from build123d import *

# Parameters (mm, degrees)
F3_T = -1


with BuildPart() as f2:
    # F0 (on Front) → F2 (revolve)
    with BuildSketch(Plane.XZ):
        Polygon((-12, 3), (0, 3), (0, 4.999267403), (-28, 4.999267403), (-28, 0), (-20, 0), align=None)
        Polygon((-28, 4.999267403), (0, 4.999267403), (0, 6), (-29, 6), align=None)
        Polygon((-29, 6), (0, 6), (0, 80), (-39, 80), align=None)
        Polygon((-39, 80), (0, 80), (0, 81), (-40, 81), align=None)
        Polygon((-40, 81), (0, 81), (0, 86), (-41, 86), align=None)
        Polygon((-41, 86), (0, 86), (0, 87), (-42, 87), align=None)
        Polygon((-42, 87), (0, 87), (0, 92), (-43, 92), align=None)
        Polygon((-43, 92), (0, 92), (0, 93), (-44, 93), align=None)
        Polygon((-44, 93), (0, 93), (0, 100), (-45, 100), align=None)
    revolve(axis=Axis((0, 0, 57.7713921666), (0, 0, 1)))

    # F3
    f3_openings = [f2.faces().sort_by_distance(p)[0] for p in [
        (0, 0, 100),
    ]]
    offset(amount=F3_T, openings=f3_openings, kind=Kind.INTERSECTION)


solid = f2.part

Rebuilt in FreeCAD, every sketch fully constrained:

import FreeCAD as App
import Part
import Sketcher
Q = App.Units.Quantity


def faces_at(feature, points):
    """Names of the faces that lie closest to the given points."""
    faces = feature.Shape.Faces
    near = lambda p: min(range(len(faces)), key=lambda i: faces[i].distToShape(Part.Vertex(*p))[0])
    return sorted({f"Face{near(p) + 1}" for p in points})


def add_polygon(sketch, points):
    """Adds a closed chain of lines whose ends are joined by coincident constraints."""
    first, n = sketch.GeometryCount, len(points)
    for a, b in zip(points, points[1:] + points[:1]):
        sketch.addGeometry(Part.LineSegment(App.Vector(*a, 0), App.Vector(*b, 0)), False)
    for i in range(n):
        sketch.addConstraint(Sketcher.Constraint("Coincident", first + i, 2, first + (i + 1) % n, 1))

doc = App.newDocument("Part")
body = doc.addObject("PartDesign::Body", "Body")

# Sketch on XZ plane
sketch1 = doc.addObject("Sketcher::SketchObject", "Sketch")
body.addObject(sketch1)
sketch1.AttachmentSupport = (doc.XZ_Plane, [""])
sketch1.MapMode = "FlatFace"
add_polygon(sketch1, [(-12, 3), (0, 3), (0, 100), (-45, 100), (-44, 93), (-43, 92), (-42, 87), (-41, 86), (-40, 81), (-39, 80), (-29, 6), (-28, 4.999267), (-28, 0), (-20, 0)])  # lines 0-13
sketch1.addConstraint(Sketcher.Constraint("Horizontal", 0))
sketch1.addConstraint(Sketcher.Constraint("Vertical", 1))
sketch1.addConstraint(Sketcher.Constraint("Horizontal", 2))
sketch1.addConstraint(Sketcher.Constraint("Vertical", 11))
sketch1.addConstraint(Sketcher.Constraint("Horizontal", 12))
sketch1.addConstraint(Sketcher.Constraint("PointOnObject", 0, 2, -2))
sketch1.addConstraint(Sketcher.Constraint("PointOnObject", 11, 2, -1))
sketch1.addConstraint(Sketcher.Constraint("Parallel", 4, 6))
sketch1.addConstraint(Sketcher.Constraint("Parallel", 5, 7))
sketch1.addConstraint(Sketcher.Constraint("Parallel", 6, 8))
sketch1.addConstraint(Sketcher.Constraint("Equal", 4, 6))
sketch1.addConstraint(Sketcher.Constraint("Equal", 5, 7))
sketch1.addConstraint(Sketcher.Constraint("Equal", 6, 8))
sketch1.addConstraint(Sketcher.Constraint("DistanceX", 0, 1, 0, 2, Q("12 mm")))
sketch1.addConstraint(Sketcher.Constraint("DistanceX", 2, 2, 2, 1, Q("45 mm")))
sketch1.addConstraint(Sketcher.Constraint("DistanceX", 12, 1, 12, 2, Q("8 mm")))
sketch1.addConstraint(Sketcher.Constraint("DistanceY", 1, 1, 1, 2, Q("97 mm")))
sketch1.addConstraint(Sketcher.Constraint("Angle", 4, Q("-45 deg")))
sketch1.addConstraint(Sketcher.Constraint("DistanceY", -1, 1, 0, 2, Q("3 mm")))
sketch1.addConstraint(Sketcher.Constraint("DistanceX", 3, 2, -1, 1, Q("44 mm")))
sketch1.addConstraint(Sketcher.Constraint("DistanceY", -1, 1, 3, 2, Q("93 mm")))
sketch1.addConstraint(Sketcher.Constraint("DistanceX", 4, 2, -1, 1, Q("43 mm")))
sketch1.addConstraint(Sketcher.Constraint("DistanceX", 5, 2, -1, 1, Q("42 mm")))
sketch1.addConstraint(Sketcher.Constraint("DistanceY", -1, 1, 5, 2, Q("87 mm")))
sketch1.addConstraint(Sketcher.Constraint("DistanceX", 9, 2, -1, 1, Q("29 mm")))
sketch1.addConstraint(Sketcher.Constraint("DistanceY", -1, 1, 9, 2, Q("6 mm")))
sketch1.addConstraint(Sketcher.Constraint("DistanceX", 10, 2, -1, 1, Q("28 mm")))
sketch1.addConstraint(Sketcher.Constraint("Distance", 10, Q("1.414732 mm")))
revolution = doc.addObject("PartDesign::Revolution", "Revolution")
body.addObject(revolution)
revolution.Profile = sketch1
revolution.ReferenceAxis = (sketch1, ["V_Axis"])
revolution.Angle = 360
doc.recompute()

thickness = doc.addObject("PartDesign::Thickness", "Thickness")
body.addObject(thickness)
thickness.Base = (revolution, faces_at(revolution, [(0, 0, 100)]))
thickness.Value = 1
thickness.Reversed = True
thickness.Join = "Intersection"

doc.recompute()
